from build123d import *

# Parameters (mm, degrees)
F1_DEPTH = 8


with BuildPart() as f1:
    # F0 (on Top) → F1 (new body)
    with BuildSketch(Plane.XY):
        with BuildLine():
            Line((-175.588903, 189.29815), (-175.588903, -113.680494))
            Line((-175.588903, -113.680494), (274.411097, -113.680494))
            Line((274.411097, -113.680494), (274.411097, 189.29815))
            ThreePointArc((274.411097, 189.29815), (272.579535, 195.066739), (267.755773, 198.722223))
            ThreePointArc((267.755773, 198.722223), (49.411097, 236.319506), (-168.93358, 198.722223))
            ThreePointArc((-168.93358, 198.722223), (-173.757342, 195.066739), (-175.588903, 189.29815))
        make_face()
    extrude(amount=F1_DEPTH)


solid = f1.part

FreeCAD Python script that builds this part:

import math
import FreeCAD as App
import Part
import Sketcher

V = App.Vector
Q = App.Units.Quantity

doc = App.newDocument("Part")
body = doc.addObject("PartDesign::Body", "Body")

# Sketch on XY plane
sketch1 = body.newObject("Sketcher::SketchObject", "Sketch")
sketch1.AttachmentSupport = (doc.getObject("XY_Plane"), [""])
sketch1.MapMode = "FlatFace"
sketch1.addGeometry(Part.LineSegment(V(-175.588903, 189.29815, 0), V(-175.588903, -113.680494, 0)), False)
sketch1.addGeometry(Part.LineSegment(V(-175.588903, -113.680494, 0), V(274.411097, -113.680494, 0)), False)
sketch1.addGeometry(Part.LineSegment(V(274.411097, -113.680494, 0), V(274.411097, 189.29815, 0)), False)
sketch1.addGeometry(Part.ArcOfCircle(Part.Circle(V(264.411095, 189.298149, 0), V(0, 0, 1), 10.000002), math.radians(0.000004), math.radians(70.459827)), False)
sketch1.addGeometry(Part.ArcOfCircle(Part.Circle(V(49.411096, -416.493005, 0), V(0, 0, 1), 652.812511), math.radians(70.45983), math.radians(109.54017)), False)
sketch1.addGeometry(Part.ArcOfCircle(Part.Circle(V(-165.588904, 189.298152, 0), V(0, 0, 1), 9.999999), math.radians(109.540168), math.radians(180.000009)), False)
sketch1.addConstraint(Sketcher.Constraint("Coincident", 0, 2, 1, 1))
sketch1.addConstraint(Sketcher.Constraint("Coincident", 1, 2, 2, 1))
sketch1.addConstraint(Sketcher.Constraint("Tangent", 2, 2, 3, 1))
sketch1.addConstraint(Sketcher.Constraint("Tangent", 3, 2, 4, 1))
sketch1.addConstraint(Sketcher.Constraint("Tangent", 4, 2, 5, 1))
sketch1.addConstraint(Sketcher.Constraint("Tangent", 5, 2, 0, 1))
sketch1.addConstraint(Sketcher.Constraint("Vertical", 0))
sketch1.addConstraint(Sketcher.Constraint("Horizontal", 1))
sketch1.addConstraint(Sketcher.Constraint("Vertical", 2))
sketch1.addConstraint(Sketcher.Constraint("Horizontal", 5, 3, 2, 2))
sketch1.addConstraint(Sketcher.Constraint("Horizontal", 3, 2, 4, 2))
sketch1.addConstraint(Sketcher.Constraint("Radius", 3, Q("10.000002 mm")))
sketch1.addConstraint(Sketcher.Constraint("DistanceX", 1, 1, 1, 2, Q("450 mm")))
sketch1.addConstraint(Sketcher.Constraint("Radius", 4, Q("652.812511 mm")))
sketch1.addConstraint(Sketcher.Constraint("DistanceY", 0, 2, 0, 1, Q("302.978644 mm")))
sketch1.addConstraint(Sketcher.Constraint("DistanceY", -1, 1, 3, 3, Q("189.298149 mm")))
sketch1.addConstraint(Sketcher.Constraint("DistanceX", -1, 1, 3, 3, Q("264.411095 mm")))
pad1 = body.newObject("PartDesign::Pad", "Pad")
pad1.Profile = sketch1
pad1.Length = 8

doc.recompute()
